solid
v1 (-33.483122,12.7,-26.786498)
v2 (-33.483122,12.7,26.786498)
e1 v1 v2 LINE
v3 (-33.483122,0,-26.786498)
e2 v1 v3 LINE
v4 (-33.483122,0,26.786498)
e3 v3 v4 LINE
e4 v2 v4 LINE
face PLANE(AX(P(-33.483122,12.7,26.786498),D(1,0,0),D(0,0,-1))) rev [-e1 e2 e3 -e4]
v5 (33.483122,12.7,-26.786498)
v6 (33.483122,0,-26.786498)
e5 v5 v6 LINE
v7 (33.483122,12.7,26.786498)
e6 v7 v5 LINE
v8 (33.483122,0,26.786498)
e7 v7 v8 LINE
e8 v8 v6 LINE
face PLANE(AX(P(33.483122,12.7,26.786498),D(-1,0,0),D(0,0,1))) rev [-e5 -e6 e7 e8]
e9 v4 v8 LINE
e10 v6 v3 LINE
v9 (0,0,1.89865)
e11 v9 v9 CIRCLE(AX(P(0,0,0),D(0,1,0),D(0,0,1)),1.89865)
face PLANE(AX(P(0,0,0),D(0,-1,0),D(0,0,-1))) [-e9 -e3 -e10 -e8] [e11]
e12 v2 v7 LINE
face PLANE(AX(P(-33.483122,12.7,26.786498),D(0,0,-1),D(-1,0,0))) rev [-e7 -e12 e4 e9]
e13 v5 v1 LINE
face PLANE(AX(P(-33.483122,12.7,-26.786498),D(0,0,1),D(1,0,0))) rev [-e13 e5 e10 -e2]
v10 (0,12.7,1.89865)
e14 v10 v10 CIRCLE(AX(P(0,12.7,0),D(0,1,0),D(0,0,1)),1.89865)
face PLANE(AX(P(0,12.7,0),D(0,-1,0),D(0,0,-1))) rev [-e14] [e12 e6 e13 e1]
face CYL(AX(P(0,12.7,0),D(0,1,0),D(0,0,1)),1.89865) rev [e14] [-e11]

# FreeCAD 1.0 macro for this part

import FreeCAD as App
import Part
import Sketcher
from FreeCAD import Vector
Q = App.Units.Quantity

doc = App.newDocument("Part")
body = doc.addObject("PartDesign::Body", "Body")

# Sketch on XZ plane
sketch1 = body.newObject("Sketcher::SketchObject", "Sketch")
sketch1.AttachmentSupport = (doc.getObject("XZ_Plane"), [""])
sketch1.MapMode = "FlatFace"
sketch1.addGeometry(Part.LineSegment(Vector(-33, -27, 0), Vector(-33, 27, 0)), False)
sketch1.addGeometry(Part.LineSegment(Vector(-33, 27, 0), Vector(33, 27, 0)), False)
sketch1.addGeometry(Part.LineSegment(Vector(33, 27, 0), Vector(33, -27, 0)), False)
sketch1.addGeometry(Part.LineSegment(Vector(33, -27, 0), Vector(-33, -27, 0)), False)
sketch1.addConstraint(Sketcher.Constraint("Coincident", 0, 2, 1, 1))
sketch1.addConstraint(Sketcher.Constraint("Coincident", 1, 2, 2, 1))
sketch1.addConstraint(Sketcher.Constraint("Coincident", 2, 2, 3, 1))
sketch1.addConstraint(Sketcher.Constraint("Coincident", 3, 2, 0, 1))
sketch1.addConstraint(Sketcher.Constraint("Vertical", 0))
sketch1.addConstraint(Sketcher.Constraint("Horizontal", 1))
sketch1.addConstraint(Sketcher.Constraint("Vertical", 2))
sketch1.addConstraint(Sketcher.Constraint("Horizontal", 3))
sketch1.addConstraint(Sketcher.Constraint("Symmetric", 0, 2, 2, 2, -1, 1))
sketch1.addConstraint(Sketcher.Constraint("DistanceX", 1, 1, 1, 2, 66.966245))
sketch1.addConstraint(Sketcher.Constraint("DistanceY", 0, 1, 0, 2, 53.572996))
pad1 = body.newObject("PartDesign::Pad", "Pad")
pad1.Profile = sketch1
pad1.Length = Q("0.5 in")
pad1.Reversed = True

# Sketch on XZ plane
sketch2 = body.newObject("Sketcher::SketchObject", "Sketch001")
sketch2.AttachmentSupport = (doc.getObject("XZ_Plane"), [""])
sketch2.MapMode = "FlatFace"
sketch2.AttachmentOffset = App.Placement(Vector(0, 0, -0.5 * 25.4), App.Rotation())
sketch2.addGeometry(Part.Circle(Vector(0, 0, 0), Vector(0, 0, 1), 1.9), False)
sketch2.addConstraint(Sketcher.Constraint("Coincident", 0, 3, -1, 1))
sketch2.addConstraint(Sketcher.Constraint("Diameter", 0, Q("0.1495 in")))
doc.recompute()
hole = body.newObject("PartDesign::Hole", "Hole")
hole.Profile = sketch2
hole.ThreadType = "None"
hole.Diameter = Q("0.1495 in")
hole.DepthType = "ThroughAll"
hole.Reversed = True

doc.recompute()
